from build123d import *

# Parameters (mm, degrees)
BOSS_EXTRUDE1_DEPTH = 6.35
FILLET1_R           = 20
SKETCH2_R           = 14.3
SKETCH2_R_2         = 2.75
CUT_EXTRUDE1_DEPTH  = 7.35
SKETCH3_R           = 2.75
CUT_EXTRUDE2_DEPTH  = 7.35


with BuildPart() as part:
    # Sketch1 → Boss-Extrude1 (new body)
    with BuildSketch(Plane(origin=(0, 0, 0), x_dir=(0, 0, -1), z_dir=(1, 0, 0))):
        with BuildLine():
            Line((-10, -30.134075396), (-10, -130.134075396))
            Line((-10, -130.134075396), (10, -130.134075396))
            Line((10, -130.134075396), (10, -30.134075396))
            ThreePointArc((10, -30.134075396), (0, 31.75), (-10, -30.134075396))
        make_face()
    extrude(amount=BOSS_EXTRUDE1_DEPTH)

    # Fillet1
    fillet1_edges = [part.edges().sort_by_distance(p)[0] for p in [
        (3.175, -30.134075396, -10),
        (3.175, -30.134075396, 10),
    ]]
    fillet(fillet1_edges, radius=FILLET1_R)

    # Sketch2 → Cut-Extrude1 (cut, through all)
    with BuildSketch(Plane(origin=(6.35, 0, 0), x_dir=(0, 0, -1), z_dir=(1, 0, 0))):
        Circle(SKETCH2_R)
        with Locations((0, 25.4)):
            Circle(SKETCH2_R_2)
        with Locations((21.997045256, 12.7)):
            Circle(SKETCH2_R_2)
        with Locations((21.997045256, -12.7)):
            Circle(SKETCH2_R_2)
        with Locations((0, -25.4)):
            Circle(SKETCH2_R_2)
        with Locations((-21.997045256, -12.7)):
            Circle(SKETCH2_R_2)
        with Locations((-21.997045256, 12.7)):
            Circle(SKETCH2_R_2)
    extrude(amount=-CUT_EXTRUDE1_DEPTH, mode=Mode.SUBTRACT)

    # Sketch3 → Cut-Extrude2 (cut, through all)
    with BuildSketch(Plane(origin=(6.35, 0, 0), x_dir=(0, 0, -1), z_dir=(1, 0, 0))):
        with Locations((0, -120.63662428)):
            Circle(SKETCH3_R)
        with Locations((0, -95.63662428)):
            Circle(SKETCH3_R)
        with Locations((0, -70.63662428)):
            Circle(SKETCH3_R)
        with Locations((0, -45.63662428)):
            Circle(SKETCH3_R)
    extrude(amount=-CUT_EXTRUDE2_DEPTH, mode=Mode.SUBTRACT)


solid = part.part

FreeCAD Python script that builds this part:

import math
import FreeCAD as App
import Part
import Sketcher

V = App.Vector


def edges_at(feature, points):
    """Names of the edges that pass closest to the given points."""
    edges = feature.Shape.Edges
    near = lambda p: min(range(len(edges)), key=lambda i: edges[i].distToShape(Part.Vertex(*p))[0])
    return sorted({f"Edge{near(p) + 1}" for p in points})

doc = App.newDocument("Part")
params = doc.addObject("Spreadsheet::Sheet", "Params")
for row, (alias, value) in enumerate([
    ("sketch1_width", "100 mm"),
    ("sketch1_height", "20 mm"),
    ("sketch1_radius", "31.75 mm"),
    ("pad1_length", "6.35 mm"),
    ("fillet_radius", "20 mm"),
    ("sketch2_diameter", "28.6 mm"),
    ("sketch2_diameter2", "5.5 mm"),
    ("sketch3_diameter", "5.5 mm"),
], start=1):
    params.set(f"A{row}", alias)
    params.set(f"B{row}", "=" + value)
    params.setAlias(f"B{row}", alias)

body = doc.addObject("PartDesign::Body", "Body")

# Sketch on YZ plane
sketch1 = body.newObject("Sketcher::SketchObject", "Sketch")
sketch1.AttachmentSupport = (doc.getObject("YZ_Plane"), [""])
sketch1.MapMode = "FlatFace"
sketch1.addGeometry(Part.LineSegment(V(-30, 10, 0), V(-130, 10, 0)), False)
sketch1.addGeometry(Part.LineSegment(V(-130, 10, 0), V(-130, -10, 0)), False)
sketch1.addGeometry(Part.LineSegment(V(-130, -10, 0), V(-30, -10, 0)), False)
sketch1.addGeometry(Part.ArcOfCircle(Part.Circle(V(0, 0, 0), V(0, 0, 1), 32), math.radians(-162), math.radians(162)), False)
sketch1.addConstraint(Sketcher.Constraint("Coincident", 0, 2, 1, 1))
sketch1.addConstraint(Sketcher.Constraint("Coincident", 1, 2, 2, 1))
sketch1.addConstraint(Sketcher.Constraint("Coincident", 2, 2, 3, 1))
sketch1.addConstraint(Sketcher.Constraint("Coincident", 3, 2, 0, 1))
sketch1.addConstraint(Sketcher.Constraint("Horizontal", 0))
sketch1.addConstraint(Sketcher.Constraint("Vertical", 1))
sketch1.addConstraint(Sketcher.Constraint("Horizontal", 2))
sketch1.addConstraint(Sketcher.Constraint("Coincident", 3, 3, -1, 1))
sketch1.addConstraint(Sketcher.Constraint("Vertical", 2, 2, 3, 2))
sketch1.addConstraint(Sketcher.Constraint("DistanceX", 0, 2, 0, 1, 100.0))
sketch1.addConstraint(Sketcher.Constraint("DistanceY", 1, 2, 1, 1, 20.0))
sketch1.addConstraint(Sketcher.Constraint("Radius", 3, 31.75))
sketch1.setExpression("Constraints[9]", "Params.sketch1_width")
sketch1.setExpression("Constraints[10]", "Params.sketch1_height")
sketch1.setExpression("Constraints[11]", "Params.sketch1_radius")
pad1 = body.newObject("PartDesign::Pad", "Pad")
pad1.Profile = sketch1
pad1.setExpression("Length", "Params.pad1_length")
doc.recompute()

fillet = body.newObject("PartDesign::Fillet", "Fillet")
fillet.Base = (pad1, edges_at(pad1, [(3.175, -30.134, -10), (3.175, -30.134, 10)]))
fillet.setExpression("Radius", "Params.fillet_radius")

# Sketch on YZ plane
sketch2 = body.newObject("Sketcher::SketchObject", "Sketch001")
sketch2.AttachmentSupport = (doc.getObject("YZ_Plane"), [""])
sketch2.MapMode = "FlatFace"
sketch2.AttachmentOffset = App.Placement(V(0, 0, 6.35), App.Rotation())
sketch2.addGeometry(Part.Circle(V(0, 0, 0), V(0, 0, 1), 14.3), False)
sketch2.addGeometry(Part.Circle(V(25.4, 0, 0), V(0, 0, 1), 2.8), False)
sketch2.addGeometry(Part.Circle(V(12.7, -22, 0), V(0, 0, 1), 2.8), False)
sketch2.addGeometry(Part.Circle(V(-12.7, -22, 0), V(0, 0, 1), 2.8), False)
sketch2.addGeometry(Part.Circle(V(-25.4, 0, 0), V(0, 0, 1), 2.8), False)
sketch2.addGeometry(Part.Circle(V(-12.7, 22, 0), V(0, 0, 1), 2.8), False)
sketch2.addGeometry(Part.Circle(V(12.7, 22, 0), V(0, 0, 1), 2.8), False)
sketch2.addConstraint(Sketcher.Constraint("Coincident", 0, 3, -1, 1))
sketch2.addConstraint(Sketcher.Constraint("Equal", 1, 2))
sketch2.addConstraint(Sketcher.Constraint("Equal", 2, 3))
sketch2.addConstraint(Sketcher.Constraint("Equal", 3, 4))
sketch2.addConstraint(Sketcher.Constraint("Equal", 4, 5))
sketch2.addConstraint(Sketcher.Constraint("Equal", 5, 6))
sketch2.addConstraint(Sketcher.Constraint("Symmetric", 1, 3, 4, 3, -1, 1))
sketch2.addConstraint(Sketcher.Constraint("Symmetric", 2, 3, 5, 3, -1, 1))
sketch2.addConstraint(Sketcher.Constraint("Symmetric", 3, 3, 6, 3, -1, 1))
sketch2.addConstraint(Sketcher.Constraint("Symmetric", 2, 3, 3, 3, -2))
sketch2.addConstraint(Sketcher.Constraint("PointOnObject", 1, 3, -1))
sketch2.addConstraint(Sketcher.Constraint("Diameter", 0, 28.6))
sketch2.addConstraint(Sketcher.Constraint("Diameter", 1, 5.5))
sketch2.addConstraint(Sketcher.Constraint("DistanceX", -1, 1, 1, 3, 25.4))
sketch2.addConstraint(Sketcher.Constraint("DistanceX", -1, 1, 2, 3, 12.7))
sketch2.addConstraint(Sketcher.Constraint("DistanceY", 3, 3, 5, 3, 43.994091))
sketch2.setExpression("Constraints[11]", "Params.sketch2_diameter")
sketch2.setExpression("Constraints[12]", "Params.sketch2_diameter2")
pocket1 = body.newObject("PartDesign::Pocket", "Pocket")
pocket1.Profile = sketch2
pocket1.Type = "ThroughAll"

# Sketch on YZ plane
sketch3 = body.newObject("Sketcher::SketchObject", "Sketch002")
sketch3.AttachmentSupport = (doc.getObject("YZ_Plane"), [""])
sketch3.MapMode = "FlatFace"
sketch3.AttachmentOffset = App.Placement(V(0, 0, 6.35), App.Rotation())
sketch3.addGeometry(Part.Circle(V(-120.6, 0, 0), V(0, 0, 1), 2.8), False)
sketch3.addGeometry(Part.Circle(V(-95.6, 0, 0), V(0, 0, 1), 2.8), False)
sketch3.addGeometry(Part.Circle(V(-70.6, 0, 0), V(0, 0, 1), 2.8), False)
sketch3.addGeometry(Part.Circle(V(-45.6, 0, 0), V(0, 0, 1), 2.8), False)
sketch3.addConstraint(Sketcher.Constraint("Equal", 0, 1))
sketch3.addConstraint(Sketcher.Constraint("Equal", 1, 2))
sketch3.addConstraint(Sketcher.Constraint("Equal", 2, 3))
sketch3.addConstraint(Sketcher.Constraint("PointOnObject", 0, 3, -1))
sketch3.addConstraint(Sketcher.Constraint("PointOnObject", 1, 3, -1))
sketch3.addConstraint(Sketcher.Constraint("PointOnObject", 2, 3, -1))
sketch3.addConstraint(Sketcher.Constraint("PointOnObject", 3, 3, -1))
sketch3.addConstraint(Sketcher.Constraint("Diameter", 0, 5.5))
sketch3.addConstraint(Sketcher.Constraint("DistanceX", 0, 3, 1, 3, 25.0))
sketch3.addConstraint(Sketcher.Constraint("DistanceX", 1, 3, 2, 3, 25.0))
sketch3.addConstraint(Sketcher.Constraint("DistanceX", 2, 3, 3, 3, 25.0))
sketch3.addConstraint(Sketcher.Constraint("DistanceX", 0, 3, -1, 1, 120.636624))
sketch3.setExpression("Constraints[7]", "Params.sketch3_diameter")
pocket2 = body.newObject("PartDesign::Pocket", "Pocket001")
pocket2.Profile = sketch3
pocket2.Type = "ThroughAll"

doc.recompute()
